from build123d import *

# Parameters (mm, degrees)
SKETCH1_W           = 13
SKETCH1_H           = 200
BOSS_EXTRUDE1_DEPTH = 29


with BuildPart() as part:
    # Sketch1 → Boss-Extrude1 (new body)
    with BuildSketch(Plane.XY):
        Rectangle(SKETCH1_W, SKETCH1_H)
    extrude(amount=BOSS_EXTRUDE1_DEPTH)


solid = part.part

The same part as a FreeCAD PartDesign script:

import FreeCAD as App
import Part
import Sketcher
from FreeCAD import Vector
Q = App.Units.Quantity


def add_polygon(sketch, points):
    """Adds a closed chain of lines whose ends are joined by coincident constraints."""
    first, n = sketch.GeometryCount, len(points)
    for a, b in zip(points, points[1:] + points[:1]):
        sketch.addGeometry(Part.LineSegment(App.Vector(*a, 0), App.Vector(*b, 0)), False)
    for i in range(n):
        sketch.addConstraint(Sketcher.Constraint("Coincident", first + i, 2, first + (i + 1) % n, 1))

doc = App.newDocument("Part")
body = doc.addObject("PartDesign::Body", "Body")

# Sketch on XY plane
sketch1 = body.newObject("Sketcher::SketchObject", "Sketch")
sketch1.AttachmentSupport = (doc.getObject("XY_Plane"), [""])
sketch1.MapMode = "FlatFace"
add_polygon(sketch1, [(-6.5, 100), (-6.5, -100), (6.5, -100), (6.5, 100)])  # lines 0-3
sketch1.addConstraint([
    Sketcher.Constraint("Vertical", 0),
    Sketcher.Constraint("Horizontal", 1),
    Sketcher.Constraint("Vertical", 2),
    Sketcher.Constraint("Horizontal", 3),
    Sketcher.Constraint("Symmetric", 0, 2, 2, 2, -1, 1),
    Sketcher.Constraint("DistanceX", 1, 1, 1, 2, Q("13 mm")),
    Sketcher.Constraint("DistanceY", 0, 2, 0, 1, Q("200 mm")),
])
pad1 = body.newObject("PartDesign::Pad", "Pad")
pad1.Profile = sketch1
pad1.Length = 29

doc.recompute()
